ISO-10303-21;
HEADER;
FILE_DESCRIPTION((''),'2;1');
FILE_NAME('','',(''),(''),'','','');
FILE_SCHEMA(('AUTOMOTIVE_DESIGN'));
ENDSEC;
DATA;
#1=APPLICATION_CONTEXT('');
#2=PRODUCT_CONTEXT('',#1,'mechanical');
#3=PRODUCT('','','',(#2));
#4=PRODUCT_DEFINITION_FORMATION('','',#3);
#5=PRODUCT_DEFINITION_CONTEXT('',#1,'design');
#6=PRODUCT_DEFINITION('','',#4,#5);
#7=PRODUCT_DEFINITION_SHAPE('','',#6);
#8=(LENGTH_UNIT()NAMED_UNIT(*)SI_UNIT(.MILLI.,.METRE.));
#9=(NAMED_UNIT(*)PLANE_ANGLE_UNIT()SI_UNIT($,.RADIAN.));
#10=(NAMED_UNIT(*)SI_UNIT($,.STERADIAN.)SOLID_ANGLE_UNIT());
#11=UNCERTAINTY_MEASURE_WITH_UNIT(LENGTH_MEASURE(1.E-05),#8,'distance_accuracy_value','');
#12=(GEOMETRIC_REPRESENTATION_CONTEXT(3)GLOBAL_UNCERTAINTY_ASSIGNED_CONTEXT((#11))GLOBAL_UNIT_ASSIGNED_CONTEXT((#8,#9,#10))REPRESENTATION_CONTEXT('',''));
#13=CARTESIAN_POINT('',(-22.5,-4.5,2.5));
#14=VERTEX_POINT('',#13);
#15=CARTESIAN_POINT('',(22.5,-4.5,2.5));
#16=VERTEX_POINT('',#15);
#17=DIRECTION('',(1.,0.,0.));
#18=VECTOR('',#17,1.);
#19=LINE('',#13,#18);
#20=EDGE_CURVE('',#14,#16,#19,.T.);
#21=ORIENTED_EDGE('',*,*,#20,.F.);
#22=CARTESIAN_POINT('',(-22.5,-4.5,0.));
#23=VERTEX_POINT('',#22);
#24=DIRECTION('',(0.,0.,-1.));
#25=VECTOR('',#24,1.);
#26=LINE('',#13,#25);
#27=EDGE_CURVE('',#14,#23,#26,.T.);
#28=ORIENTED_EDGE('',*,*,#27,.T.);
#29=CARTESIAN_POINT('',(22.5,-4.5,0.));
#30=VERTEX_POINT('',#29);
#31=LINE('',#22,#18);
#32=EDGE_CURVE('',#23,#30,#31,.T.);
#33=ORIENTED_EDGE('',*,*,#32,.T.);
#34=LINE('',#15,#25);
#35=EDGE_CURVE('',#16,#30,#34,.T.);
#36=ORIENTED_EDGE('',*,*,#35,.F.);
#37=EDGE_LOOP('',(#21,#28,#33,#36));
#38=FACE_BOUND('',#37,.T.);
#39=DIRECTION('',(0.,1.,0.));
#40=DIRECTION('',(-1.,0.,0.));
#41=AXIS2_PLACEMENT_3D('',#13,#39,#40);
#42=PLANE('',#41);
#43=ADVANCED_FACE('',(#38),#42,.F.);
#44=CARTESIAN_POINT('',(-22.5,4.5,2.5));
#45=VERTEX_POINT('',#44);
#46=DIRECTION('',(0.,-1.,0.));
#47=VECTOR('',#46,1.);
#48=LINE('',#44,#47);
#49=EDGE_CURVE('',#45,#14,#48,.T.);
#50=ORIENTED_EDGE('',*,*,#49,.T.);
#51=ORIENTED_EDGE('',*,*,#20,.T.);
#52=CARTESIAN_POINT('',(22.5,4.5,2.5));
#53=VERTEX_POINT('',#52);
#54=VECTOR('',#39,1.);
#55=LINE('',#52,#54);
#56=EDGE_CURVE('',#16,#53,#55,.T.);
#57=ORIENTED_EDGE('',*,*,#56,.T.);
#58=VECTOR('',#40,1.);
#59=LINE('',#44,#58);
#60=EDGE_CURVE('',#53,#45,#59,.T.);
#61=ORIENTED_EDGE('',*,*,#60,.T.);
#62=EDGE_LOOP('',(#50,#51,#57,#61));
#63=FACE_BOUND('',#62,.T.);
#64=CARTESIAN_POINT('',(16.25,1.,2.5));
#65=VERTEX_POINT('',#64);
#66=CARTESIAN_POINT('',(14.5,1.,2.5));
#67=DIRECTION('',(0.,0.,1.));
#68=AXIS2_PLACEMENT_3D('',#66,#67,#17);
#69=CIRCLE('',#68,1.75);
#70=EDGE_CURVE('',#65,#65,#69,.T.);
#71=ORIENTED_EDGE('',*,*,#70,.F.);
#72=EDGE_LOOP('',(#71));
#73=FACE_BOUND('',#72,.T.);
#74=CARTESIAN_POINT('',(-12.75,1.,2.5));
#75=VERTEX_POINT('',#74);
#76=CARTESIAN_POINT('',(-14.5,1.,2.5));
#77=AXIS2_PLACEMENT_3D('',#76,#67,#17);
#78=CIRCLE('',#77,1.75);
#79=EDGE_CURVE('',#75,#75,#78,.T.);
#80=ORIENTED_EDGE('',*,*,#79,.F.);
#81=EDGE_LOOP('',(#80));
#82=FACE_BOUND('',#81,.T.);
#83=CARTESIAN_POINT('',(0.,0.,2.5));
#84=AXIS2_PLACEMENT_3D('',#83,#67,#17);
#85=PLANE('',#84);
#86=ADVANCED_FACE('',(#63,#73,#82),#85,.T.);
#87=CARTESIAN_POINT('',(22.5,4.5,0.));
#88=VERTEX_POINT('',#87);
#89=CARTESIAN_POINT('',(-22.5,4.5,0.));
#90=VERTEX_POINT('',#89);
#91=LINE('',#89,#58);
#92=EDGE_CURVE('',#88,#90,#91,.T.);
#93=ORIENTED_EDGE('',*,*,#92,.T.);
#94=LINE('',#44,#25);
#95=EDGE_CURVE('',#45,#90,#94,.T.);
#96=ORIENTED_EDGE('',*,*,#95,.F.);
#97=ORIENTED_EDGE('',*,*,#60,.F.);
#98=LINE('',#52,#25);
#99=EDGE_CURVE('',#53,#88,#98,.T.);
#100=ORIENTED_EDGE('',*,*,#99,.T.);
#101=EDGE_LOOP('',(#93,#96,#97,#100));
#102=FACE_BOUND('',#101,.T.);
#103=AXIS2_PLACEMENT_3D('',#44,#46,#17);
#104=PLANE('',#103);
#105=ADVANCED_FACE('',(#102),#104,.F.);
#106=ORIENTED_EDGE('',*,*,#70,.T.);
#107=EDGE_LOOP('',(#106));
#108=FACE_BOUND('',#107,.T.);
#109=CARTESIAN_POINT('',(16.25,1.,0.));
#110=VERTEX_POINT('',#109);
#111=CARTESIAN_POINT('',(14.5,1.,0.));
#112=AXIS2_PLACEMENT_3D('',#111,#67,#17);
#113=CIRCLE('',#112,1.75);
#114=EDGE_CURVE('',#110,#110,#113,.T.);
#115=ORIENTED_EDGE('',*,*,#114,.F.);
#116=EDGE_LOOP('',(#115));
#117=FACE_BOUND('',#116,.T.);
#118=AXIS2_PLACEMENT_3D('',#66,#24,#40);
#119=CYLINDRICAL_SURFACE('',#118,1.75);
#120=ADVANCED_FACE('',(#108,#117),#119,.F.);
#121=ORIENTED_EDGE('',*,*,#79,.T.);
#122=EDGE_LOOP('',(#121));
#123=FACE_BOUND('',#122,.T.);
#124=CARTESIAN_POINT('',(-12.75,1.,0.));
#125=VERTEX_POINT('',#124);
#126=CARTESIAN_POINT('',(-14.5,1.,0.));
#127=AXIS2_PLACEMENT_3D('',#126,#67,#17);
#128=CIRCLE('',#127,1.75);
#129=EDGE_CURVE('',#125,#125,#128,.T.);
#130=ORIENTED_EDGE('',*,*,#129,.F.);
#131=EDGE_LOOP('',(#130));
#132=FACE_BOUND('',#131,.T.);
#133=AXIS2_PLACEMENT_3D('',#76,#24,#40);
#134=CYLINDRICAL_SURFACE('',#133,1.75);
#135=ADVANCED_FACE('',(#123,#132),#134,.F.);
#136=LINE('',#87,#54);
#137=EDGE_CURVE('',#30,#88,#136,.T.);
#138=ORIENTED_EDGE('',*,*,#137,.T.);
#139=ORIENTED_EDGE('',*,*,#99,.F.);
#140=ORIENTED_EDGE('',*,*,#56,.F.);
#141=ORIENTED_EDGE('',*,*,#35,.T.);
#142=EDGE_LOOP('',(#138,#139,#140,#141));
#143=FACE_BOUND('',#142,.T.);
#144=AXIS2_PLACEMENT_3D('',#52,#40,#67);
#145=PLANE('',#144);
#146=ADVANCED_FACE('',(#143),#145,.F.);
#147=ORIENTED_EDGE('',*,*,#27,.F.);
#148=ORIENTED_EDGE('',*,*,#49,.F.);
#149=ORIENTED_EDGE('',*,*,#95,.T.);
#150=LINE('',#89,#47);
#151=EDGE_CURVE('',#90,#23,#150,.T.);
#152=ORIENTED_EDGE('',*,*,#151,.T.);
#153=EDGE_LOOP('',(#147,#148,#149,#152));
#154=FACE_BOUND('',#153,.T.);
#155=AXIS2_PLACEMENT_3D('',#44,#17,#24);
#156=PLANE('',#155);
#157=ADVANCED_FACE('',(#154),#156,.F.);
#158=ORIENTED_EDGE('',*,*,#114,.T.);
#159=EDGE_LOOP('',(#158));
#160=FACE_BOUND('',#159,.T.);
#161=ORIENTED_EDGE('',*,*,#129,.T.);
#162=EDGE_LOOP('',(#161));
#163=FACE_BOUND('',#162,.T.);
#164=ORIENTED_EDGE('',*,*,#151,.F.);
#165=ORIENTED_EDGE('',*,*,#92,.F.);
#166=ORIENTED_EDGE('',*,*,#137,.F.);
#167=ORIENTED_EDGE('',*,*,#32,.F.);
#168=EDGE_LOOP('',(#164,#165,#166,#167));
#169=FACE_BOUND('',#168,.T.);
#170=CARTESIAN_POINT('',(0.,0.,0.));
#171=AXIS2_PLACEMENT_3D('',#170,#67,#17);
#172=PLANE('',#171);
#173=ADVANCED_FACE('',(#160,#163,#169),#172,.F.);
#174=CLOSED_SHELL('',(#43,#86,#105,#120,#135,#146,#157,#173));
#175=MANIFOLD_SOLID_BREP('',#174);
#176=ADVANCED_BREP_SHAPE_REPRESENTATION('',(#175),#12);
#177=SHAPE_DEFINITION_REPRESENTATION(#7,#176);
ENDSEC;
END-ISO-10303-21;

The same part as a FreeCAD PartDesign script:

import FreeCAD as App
import Part
import Sketcher
Q = App.Units.Quantity

doc = App.newDocument("Part")
body = doc.addObject("PartDesign::Body", "Body")

sketch1 = doc.addObject("Sketcher::SketchObject", "Sketch")
body.addObject(sketch1)
sketch1.AttachmentSupport = (doc.XY_Plane, [""])
sketch1.MapMode = "FlatFace"
sketch1.addGeometry([
    Part.LineSegment(App.Vector(-22.5, 4.5, 0), App.Vector(-22.5, -4.5, 0)),
    Part.LineSegment(App.Vector(-22.5, -4.5, 0), App.Vector(22.5, -4.5, 0)),
    Part.LineSegment(App.Vector(22.5, -4.5, 0), App.Vector(22.5, 4.5, 0)),
    Part.LineSegment(App.Vector(22.5, 4.5, 0), App.Vector(-22.5, 4.5, 0)),
    Part.Circle(App.Vector(-14.5, 1, 0), App.Vector(0, 0, 1), 1.8),
    Part.Circle(App.Vector(14.5, 1, 0), App.Vector(0, 0, 1), 1.8),
], False)
sketch1.addConstraint([
    Sketcher.Constraint("Coincident", 0, 2, 1, 1),
    Sketcher.Constraint("Coincident", 1, 2, 2, 1),
    Sketcher.Constraint("Coincident", 2, 2, 3, 1),
    Sketcher.Constraint("Coincident", 3, 2, 0, 1),
    Sketcher.Constraint("Vertical", 0),
    Sketcher.Constraint("Horizontal", 1),
    Sketcher.Constraint("Vertical", 2),
    Sketcher.Constraint("Horizontal", 3),
    Sketcher.Constraint("Equal", 4, 5),
    Sketcher.Constraint("Symmetric", 0, 2, 2, 2, -1, 1),
    Sketcher.Constraint("Symmetric", 4, 3, 5, 3, -2),
    Sketcher.Constraint("Diameter", 4, Q("3.5 mm")),
    Sketcher.Constraint("DistanceX", 1, 1, 1, 2, Q("45 mm")),
    Sketcher.Constraint("DistanceY", 0, 2, 0, 1, Q("9 mm")),
    Sketcher.Constraint("DistanceY", -1, 1, 4, 3, Q("1 mm")),
    Sketcher.Constraint("DistanceX", 4, 3, 5, 3, Q("29 mm")),
])
pad1 = doc.addObject("PartDesign::Pad", "Pad")
body.addObject(pad1)
pad1.Profile = sketch1
pad1.Length = 2.5

doc.recompute()
